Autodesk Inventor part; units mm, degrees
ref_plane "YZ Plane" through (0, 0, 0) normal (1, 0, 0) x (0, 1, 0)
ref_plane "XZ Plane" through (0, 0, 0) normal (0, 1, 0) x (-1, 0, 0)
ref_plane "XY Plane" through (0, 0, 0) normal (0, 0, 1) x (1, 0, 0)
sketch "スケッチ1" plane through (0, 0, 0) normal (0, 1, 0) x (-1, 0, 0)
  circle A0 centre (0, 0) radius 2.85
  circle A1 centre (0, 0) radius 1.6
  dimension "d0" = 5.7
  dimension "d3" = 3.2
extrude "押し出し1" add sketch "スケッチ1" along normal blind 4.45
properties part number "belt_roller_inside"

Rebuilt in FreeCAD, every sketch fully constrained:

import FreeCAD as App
import Part
import Sketcher

doc = App.newDocument("Part")
body = doc.addObject("PartDesign::Body", "Body")

# Sketch on XZ plane
sketch1 = body.newObject("Sketcher::SketchObject", "Sketch")
sketch1.AttachmentSupport = (doc.getObject("XZ_Plane"), [""])
sketch1.MapMode = "FlatFace"
sketch1.addGeometry(Part.Circle(App.Vector(0, 0, 0), App.Vector(0, 0, 1), 2.9), False)
sketch1.addGeometry(Part.Circle(App.Vector(0, 0, 0), App.Vector(0, 0, 1), 1.6), False)
sketch1.addConstraint(Sketcher.Constraint("Coincident", 0, 3, -1, 1))
sketch1.addConstraint(Sketcher.Constraint("Coincident", 1, 3, -1, 1))
sketch1.addConstraint(Sketcher.Constraint("Diameter", 0, 5.7))
sketch1.addConstraint(Sketcher.Constraint("Diameter", 1, 3.2))
pad1 = body.newObject("PartDesign::Pad", "Pad")
pad1.Profile = sketch1
pad1.Length = 4.45
pad1.Reversed = True

doc.recompute()
